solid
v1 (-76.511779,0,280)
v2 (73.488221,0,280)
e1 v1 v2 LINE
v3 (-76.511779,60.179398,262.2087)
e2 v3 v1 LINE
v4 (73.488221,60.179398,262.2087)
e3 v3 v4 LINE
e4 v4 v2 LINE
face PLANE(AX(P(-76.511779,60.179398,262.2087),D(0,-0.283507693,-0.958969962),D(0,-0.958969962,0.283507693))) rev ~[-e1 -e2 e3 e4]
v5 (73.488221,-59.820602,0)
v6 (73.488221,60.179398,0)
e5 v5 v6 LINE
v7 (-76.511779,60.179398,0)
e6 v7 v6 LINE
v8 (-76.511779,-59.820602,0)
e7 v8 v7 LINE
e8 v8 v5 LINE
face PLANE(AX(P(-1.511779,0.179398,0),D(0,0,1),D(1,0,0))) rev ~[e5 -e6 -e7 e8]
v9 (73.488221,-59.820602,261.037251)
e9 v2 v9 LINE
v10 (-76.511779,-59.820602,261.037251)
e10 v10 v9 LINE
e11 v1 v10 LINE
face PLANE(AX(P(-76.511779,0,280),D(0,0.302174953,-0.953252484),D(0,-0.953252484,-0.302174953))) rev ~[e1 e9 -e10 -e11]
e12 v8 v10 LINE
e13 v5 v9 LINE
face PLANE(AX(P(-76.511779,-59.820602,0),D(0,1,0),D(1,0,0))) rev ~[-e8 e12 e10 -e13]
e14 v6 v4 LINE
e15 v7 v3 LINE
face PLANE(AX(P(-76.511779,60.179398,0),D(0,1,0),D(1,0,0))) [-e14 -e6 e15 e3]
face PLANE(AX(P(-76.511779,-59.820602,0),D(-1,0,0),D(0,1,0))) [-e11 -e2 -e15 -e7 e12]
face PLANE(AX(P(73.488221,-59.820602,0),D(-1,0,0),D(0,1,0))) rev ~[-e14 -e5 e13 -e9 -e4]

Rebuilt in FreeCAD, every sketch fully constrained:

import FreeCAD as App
import Part
import Sketcher

V = App.Vector
Q = App.Units.Quantity


def add_polygon(sketch, points):
    """Adds a closed chain of lines whose ends are joined by coincident constraints."""
    first, n = sketch.GeometryCount, len(points)
    for a, b in zip(points, points[1:] + points[:1]):
        sketch.addGeometry(Part.LineSegment(App.Vector(*a, 0), App.Vector(*b, 0)), False)
    for i in range(n):
        sketch.addConstraint(Sketcher.Constraint("Coincident", first + i, 2, first + (i + 1) % n, 1))

doc = App.newDocument("Part")
body = doc.addObject("PartDesign::Body", "Body")

# Sketch on XY plane
sketch1 = body.newObject("Sketcher::SketchObject", "Sketch")
sketch1.AttachmentSupport = (doc.getObject("XY_Plane"), [""])
sketch1.MapMode = "FlatFace"
add_polygon(sketch1, [(-77, 60), (-77, -60), (73, -60), (73, 60)])  # lines 0-3
sketch1.addConstraint(Sketcher.Constraint("Vertical", 0))
sketch1.addConstraint(Sketcher.Constraint("Horizontal", 1))
sketch1.addConstraint(Sketcher.Constraint("Vertical", 2))
sketch1.addConstraint(Sketcher.Constraint("Horizontal", 3))
sketch1.addConstraint(Sketcher.Constraint("DistanceX", 1, 1, 1, 2, Q("150 mm")))
sketch1.addConstraint(Sketcher.Constraint("DistanceY", 0, 2, 0, 1, Q("120 mm")))
sketch1.addConstraint(Sketcher.Constraint("DistanceX", 0, 2, -1, 1, Q("76.511779 mm")))
sketch1.addConstraint(Sketcher.Constraint("DistanceY", 0, 2, -1, 1, Q("59.820602 mm")))
pad1 = body.newObject("PartDesign::Pad", "Pad")
pad1.Profile = sketch1
pad1.Length = 280

# Sketch on YZ plane
sketch2 = body.newObject("Sketcher::SketchObject", "Sketch001")
sketch2.AttachmentSupport = (doc.getObject("YZ_Plane"), [""])
sketch2.MapMode = "FlatFace"
sketch2.AttachmentOffset = App.Placement(V(0, 0, -76.511779), App.Rotation())
add_polygon(sketch2, [(60, 262), (0, 280), (60, 280)])  # lines 0-2
add_polygon(sketch2, [(-60, 280), (0, 280), (-60, 261)])  # lines 3-5
sketch2.addConstraint(Sketcher.Constraint("Horizontal", 1))
sketch2.addConstraint(Sketcher.Constraint("Vertical", 2))
sketch2.addConstraint(Sketcher.Constraint("Horizontal", 3))
sketch2.addConstraint(Sketcher.Constraint("Vertical", 5))
sketch2.addConstraint(Sketcher.Constraint("Coincident", 3, 2, 0, 2))
sketch2.addConstraint(Sketcher.Constraint("PointOnObject", 0, 2, -2))
sketch2.addConstraint(Sketcher.Constraint("Equal", 0, 4))
sketch2.addConstraint(Sketcher.Constraint("DistanceY", -1, 1, 0, 2, Q("280 mm")))
sketch2.addConstraint(Sketcher.Constraint("DistanceX", 4, 2, 2, 2, Q("120 mm")))
sketch2.addConstraint(Sketcher.Constraint("DistanceY", 2, 2, 2, 1, Q("17.7913 mm")))
sketch2.addConstraint(Sketcher.Constraint("DistanceY", 5, 1, 5, 2, Q("18.962749 mm")))
pocket1 = body.newObject("PartDesign::Pocket", "Pocket")
pocket1.Profile = sketch2
pocket1.Type = "ThroughAll"
pocket1.Reversed = True

doc.recompute()
